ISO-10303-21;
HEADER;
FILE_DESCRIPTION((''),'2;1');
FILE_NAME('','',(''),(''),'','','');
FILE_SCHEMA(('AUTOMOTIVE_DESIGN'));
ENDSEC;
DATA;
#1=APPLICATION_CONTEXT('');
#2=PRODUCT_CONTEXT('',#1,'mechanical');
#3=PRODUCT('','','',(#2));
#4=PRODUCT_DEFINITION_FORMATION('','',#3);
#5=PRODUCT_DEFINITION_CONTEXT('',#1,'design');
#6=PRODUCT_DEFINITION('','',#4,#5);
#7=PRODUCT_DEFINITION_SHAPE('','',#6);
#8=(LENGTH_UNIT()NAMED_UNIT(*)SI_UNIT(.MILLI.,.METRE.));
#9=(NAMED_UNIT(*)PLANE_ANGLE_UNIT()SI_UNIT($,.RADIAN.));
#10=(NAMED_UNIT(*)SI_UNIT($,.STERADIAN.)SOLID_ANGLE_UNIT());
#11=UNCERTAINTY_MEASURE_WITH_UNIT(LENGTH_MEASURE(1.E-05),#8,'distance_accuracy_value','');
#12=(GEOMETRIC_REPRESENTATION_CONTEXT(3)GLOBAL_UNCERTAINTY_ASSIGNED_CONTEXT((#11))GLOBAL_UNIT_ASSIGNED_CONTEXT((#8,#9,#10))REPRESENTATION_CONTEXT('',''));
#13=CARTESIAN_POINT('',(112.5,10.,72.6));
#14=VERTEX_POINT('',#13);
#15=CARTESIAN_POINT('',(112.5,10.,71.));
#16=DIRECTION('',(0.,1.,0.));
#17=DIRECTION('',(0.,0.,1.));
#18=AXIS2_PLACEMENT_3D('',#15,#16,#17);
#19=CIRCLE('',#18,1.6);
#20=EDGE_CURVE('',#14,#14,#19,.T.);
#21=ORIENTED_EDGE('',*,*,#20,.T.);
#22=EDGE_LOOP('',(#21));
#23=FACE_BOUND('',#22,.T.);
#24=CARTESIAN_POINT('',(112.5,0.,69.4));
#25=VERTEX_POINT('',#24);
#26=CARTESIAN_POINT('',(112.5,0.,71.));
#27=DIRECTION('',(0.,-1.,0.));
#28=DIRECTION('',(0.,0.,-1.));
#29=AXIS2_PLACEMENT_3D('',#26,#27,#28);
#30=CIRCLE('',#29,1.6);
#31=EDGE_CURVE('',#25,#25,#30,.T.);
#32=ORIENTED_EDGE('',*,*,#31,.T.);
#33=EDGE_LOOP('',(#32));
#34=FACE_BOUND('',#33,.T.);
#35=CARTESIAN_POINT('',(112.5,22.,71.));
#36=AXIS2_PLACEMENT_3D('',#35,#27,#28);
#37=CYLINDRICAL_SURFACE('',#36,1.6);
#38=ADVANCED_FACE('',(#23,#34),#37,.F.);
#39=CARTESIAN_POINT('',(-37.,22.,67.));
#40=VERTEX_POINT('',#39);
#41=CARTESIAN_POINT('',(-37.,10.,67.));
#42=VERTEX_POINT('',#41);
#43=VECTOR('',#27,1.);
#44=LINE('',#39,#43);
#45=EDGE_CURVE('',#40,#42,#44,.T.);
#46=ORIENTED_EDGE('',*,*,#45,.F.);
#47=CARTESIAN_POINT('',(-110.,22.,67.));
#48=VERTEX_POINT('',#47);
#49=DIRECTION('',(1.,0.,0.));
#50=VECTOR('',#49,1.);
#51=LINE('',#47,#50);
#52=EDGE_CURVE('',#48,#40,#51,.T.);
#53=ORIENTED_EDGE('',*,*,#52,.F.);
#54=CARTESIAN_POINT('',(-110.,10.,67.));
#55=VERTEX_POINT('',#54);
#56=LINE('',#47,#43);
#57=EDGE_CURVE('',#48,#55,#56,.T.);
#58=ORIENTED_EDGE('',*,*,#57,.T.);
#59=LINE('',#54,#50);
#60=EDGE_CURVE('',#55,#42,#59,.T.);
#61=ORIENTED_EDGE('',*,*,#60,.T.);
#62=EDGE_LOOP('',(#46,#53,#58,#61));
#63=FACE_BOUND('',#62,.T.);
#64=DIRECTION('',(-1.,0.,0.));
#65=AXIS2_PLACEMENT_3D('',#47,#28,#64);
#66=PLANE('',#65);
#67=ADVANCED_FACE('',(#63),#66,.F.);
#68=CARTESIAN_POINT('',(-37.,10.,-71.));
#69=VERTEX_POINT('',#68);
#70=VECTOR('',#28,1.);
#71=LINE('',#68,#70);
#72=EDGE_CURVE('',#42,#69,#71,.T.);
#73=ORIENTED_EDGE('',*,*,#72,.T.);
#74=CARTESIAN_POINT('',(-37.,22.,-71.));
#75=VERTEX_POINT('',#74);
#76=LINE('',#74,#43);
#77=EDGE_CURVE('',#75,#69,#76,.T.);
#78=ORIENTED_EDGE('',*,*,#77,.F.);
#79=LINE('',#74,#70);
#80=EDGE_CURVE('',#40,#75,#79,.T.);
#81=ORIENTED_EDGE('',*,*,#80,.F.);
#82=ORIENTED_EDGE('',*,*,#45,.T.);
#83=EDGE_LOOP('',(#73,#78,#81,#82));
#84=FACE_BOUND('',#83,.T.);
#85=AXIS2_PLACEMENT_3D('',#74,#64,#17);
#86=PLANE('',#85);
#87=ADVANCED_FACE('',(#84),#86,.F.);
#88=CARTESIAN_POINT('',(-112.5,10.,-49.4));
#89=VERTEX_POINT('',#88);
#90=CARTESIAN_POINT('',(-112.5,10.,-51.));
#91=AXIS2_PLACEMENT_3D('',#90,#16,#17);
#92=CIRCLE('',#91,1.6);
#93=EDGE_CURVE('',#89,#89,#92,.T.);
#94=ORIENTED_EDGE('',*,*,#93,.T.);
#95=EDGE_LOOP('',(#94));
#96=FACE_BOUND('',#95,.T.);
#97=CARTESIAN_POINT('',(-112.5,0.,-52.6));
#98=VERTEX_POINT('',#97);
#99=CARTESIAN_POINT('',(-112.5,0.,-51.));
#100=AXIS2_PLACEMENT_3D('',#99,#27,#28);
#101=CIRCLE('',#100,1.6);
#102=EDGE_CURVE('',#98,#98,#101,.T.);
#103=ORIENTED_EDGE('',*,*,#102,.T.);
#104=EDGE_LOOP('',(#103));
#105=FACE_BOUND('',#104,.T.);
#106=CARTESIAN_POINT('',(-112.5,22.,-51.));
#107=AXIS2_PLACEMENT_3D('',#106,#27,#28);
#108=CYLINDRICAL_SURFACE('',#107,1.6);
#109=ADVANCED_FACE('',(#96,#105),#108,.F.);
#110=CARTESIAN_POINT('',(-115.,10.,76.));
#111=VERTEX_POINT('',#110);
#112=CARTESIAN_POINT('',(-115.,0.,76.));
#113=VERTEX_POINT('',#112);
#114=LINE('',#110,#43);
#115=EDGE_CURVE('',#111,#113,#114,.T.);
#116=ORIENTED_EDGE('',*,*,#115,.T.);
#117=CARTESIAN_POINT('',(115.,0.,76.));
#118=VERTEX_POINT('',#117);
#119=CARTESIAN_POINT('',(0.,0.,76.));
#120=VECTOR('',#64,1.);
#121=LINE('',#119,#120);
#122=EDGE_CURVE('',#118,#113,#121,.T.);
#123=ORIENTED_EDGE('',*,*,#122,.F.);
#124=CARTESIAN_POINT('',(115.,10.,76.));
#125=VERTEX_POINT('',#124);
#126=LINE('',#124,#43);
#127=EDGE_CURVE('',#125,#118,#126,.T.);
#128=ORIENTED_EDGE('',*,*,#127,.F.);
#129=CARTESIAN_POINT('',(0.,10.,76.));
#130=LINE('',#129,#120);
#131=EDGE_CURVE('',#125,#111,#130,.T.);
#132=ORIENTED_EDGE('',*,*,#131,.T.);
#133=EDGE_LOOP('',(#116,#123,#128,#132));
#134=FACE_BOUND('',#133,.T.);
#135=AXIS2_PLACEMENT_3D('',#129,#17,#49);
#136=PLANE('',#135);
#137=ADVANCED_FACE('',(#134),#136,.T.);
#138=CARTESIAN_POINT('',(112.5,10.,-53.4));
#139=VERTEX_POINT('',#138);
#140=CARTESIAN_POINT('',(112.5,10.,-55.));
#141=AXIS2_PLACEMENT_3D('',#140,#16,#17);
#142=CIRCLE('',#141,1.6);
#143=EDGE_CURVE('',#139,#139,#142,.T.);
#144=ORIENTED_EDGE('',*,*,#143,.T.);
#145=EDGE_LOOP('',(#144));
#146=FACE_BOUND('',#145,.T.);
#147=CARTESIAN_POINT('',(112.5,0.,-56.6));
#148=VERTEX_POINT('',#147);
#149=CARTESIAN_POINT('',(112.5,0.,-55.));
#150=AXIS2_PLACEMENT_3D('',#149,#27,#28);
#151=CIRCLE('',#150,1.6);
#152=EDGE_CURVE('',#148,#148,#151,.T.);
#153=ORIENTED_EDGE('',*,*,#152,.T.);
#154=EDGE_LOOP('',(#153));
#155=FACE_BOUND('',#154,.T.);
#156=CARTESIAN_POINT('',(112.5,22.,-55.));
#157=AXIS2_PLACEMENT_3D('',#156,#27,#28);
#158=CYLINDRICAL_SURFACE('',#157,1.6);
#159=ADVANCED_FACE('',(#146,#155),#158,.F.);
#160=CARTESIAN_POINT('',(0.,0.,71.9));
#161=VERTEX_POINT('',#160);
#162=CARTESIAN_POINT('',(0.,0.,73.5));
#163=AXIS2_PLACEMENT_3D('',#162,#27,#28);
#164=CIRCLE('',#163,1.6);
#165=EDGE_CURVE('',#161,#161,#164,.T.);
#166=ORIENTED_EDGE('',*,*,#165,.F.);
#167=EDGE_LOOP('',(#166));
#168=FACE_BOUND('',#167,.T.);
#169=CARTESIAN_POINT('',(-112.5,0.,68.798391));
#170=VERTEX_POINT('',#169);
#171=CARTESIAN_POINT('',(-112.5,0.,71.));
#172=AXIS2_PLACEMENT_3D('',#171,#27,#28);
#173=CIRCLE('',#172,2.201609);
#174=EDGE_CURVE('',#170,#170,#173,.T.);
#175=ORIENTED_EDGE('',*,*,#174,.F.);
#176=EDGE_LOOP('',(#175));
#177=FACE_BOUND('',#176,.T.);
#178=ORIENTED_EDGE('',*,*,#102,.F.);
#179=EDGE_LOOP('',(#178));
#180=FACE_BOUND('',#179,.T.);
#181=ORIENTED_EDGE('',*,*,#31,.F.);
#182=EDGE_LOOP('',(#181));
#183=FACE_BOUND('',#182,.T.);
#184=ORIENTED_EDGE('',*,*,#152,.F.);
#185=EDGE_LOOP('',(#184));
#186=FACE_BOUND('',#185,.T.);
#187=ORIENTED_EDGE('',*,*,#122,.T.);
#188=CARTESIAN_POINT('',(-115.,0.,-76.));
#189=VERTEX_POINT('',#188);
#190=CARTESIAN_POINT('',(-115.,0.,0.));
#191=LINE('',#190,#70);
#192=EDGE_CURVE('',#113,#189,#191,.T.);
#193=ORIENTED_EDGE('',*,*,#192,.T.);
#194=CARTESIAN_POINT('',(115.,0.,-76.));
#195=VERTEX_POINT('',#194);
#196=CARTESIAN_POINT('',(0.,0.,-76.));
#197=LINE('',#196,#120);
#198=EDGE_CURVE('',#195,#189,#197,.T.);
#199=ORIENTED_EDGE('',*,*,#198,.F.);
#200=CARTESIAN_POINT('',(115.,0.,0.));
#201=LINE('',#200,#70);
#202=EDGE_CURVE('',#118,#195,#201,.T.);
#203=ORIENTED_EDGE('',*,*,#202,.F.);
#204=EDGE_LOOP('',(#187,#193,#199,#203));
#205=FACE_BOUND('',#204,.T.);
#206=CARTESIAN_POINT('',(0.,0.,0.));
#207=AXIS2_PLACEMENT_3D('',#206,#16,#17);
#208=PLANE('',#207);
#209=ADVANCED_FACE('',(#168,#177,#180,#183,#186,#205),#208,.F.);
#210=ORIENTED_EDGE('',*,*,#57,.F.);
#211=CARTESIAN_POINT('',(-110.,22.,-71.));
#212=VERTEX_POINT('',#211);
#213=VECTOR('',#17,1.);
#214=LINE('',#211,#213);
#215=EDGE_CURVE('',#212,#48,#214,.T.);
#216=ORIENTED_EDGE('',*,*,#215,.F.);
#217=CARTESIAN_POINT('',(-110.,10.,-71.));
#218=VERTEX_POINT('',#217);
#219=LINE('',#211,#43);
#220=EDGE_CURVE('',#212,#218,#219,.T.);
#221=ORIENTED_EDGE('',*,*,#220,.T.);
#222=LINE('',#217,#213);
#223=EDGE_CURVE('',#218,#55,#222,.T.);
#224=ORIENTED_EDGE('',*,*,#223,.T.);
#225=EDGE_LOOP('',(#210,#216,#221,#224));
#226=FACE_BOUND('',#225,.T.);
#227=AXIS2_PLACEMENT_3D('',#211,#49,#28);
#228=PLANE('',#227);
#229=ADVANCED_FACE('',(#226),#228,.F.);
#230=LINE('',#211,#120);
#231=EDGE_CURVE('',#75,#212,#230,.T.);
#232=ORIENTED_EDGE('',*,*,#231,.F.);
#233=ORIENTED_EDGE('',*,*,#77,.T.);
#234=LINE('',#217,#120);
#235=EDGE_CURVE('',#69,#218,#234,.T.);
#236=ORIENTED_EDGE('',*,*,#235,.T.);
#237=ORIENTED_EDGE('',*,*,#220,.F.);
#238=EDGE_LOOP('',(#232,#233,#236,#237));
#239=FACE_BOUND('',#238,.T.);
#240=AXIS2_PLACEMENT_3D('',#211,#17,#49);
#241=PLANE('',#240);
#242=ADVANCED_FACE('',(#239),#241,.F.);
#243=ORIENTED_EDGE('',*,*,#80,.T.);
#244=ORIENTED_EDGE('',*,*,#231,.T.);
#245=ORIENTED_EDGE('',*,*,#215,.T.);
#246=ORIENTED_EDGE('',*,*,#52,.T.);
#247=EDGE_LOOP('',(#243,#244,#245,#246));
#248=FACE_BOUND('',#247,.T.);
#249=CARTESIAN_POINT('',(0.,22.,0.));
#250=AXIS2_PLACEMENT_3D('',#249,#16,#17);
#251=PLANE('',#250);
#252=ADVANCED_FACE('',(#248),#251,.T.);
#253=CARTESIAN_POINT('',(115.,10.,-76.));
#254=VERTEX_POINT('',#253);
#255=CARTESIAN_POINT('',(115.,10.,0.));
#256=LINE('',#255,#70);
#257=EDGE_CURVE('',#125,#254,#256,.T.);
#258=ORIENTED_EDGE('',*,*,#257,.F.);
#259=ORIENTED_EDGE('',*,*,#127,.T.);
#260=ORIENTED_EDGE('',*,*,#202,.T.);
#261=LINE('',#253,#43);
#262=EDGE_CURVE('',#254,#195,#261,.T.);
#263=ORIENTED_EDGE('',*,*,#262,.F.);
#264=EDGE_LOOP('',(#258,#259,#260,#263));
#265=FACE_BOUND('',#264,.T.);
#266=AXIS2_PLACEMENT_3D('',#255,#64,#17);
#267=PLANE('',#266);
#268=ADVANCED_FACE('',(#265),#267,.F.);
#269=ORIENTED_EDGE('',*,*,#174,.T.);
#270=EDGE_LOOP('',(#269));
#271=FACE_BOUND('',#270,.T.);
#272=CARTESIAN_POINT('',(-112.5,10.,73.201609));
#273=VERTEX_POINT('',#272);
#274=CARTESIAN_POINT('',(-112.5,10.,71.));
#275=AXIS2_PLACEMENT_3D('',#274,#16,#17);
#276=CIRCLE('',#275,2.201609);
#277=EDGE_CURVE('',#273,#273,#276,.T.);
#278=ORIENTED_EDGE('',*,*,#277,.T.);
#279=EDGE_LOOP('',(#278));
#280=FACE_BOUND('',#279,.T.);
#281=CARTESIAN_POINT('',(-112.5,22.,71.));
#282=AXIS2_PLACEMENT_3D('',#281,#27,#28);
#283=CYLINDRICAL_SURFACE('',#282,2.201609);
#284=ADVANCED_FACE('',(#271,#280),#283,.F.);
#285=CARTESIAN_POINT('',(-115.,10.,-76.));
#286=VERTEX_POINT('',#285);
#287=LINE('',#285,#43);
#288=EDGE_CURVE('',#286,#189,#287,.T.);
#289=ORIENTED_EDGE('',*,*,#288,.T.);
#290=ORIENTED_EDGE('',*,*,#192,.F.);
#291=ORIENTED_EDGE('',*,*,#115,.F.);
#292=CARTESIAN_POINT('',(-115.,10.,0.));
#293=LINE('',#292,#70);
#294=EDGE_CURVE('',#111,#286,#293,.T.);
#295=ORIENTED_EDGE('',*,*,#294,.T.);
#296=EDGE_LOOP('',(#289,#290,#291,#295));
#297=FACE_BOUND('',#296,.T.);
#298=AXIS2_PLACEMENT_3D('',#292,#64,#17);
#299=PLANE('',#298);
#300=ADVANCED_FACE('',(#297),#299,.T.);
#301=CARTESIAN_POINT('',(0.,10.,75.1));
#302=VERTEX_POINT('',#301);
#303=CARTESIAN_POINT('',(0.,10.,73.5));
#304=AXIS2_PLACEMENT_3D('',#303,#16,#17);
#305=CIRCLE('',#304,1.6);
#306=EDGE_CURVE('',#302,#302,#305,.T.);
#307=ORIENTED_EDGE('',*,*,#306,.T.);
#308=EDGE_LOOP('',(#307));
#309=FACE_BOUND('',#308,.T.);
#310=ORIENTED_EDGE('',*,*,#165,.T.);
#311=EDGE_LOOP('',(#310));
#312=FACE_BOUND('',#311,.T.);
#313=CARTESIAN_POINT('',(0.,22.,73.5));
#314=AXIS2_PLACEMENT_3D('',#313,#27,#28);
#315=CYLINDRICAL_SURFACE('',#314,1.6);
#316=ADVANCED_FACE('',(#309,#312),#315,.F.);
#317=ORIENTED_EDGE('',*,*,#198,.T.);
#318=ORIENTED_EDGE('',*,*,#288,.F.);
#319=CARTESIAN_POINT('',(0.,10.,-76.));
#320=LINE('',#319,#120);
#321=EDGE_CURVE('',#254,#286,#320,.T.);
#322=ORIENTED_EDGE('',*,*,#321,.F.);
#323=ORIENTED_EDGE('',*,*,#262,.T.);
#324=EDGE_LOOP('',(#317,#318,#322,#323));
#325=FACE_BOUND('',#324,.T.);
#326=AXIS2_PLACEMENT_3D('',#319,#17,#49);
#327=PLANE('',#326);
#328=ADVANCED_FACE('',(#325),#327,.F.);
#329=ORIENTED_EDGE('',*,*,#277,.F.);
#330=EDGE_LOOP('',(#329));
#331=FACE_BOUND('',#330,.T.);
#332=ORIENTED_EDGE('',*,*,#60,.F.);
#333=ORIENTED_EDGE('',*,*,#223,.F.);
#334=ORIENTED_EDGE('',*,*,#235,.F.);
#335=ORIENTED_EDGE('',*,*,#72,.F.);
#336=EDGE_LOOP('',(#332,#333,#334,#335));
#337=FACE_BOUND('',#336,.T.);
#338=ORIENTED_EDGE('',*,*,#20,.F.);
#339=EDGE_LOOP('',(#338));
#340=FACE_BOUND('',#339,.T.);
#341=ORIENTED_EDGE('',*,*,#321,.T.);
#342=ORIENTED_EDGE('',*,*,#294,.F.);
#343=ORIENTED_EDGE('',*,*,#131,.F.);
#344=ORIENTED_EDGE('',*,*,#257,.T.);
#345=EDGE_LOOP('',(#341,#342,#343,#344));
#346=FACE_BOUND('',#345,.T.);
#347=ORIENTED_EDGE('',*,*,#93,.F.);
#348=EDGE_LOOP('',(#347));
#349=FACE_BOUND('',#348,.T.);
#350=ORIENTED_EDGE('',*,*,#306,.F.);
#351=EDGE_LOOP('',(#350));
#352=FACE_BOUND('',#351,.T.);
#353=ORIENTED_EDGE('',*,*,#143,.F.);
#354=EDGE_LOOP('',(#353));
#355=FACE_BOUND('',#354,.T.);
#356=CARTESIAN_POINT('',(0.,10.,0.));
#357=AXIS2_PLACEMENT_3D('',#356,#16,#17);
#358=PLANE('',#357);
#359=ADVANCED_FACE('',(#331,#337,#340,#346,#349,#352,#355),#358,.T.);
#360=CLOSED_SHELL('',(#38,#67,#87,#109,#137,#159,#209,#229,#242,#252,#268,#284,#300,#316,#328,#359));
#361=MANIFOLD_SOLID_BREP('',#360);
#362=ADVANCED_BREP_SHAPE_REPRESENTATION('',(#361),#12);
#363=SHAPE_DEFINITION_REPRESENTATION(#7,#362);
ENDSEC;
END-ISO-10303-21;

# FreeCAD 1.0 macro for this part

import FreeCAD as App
import Part
import Sketcher
from FreeCAD import Vector


def add_polygon(sketch, points):
    """Adds a closed chain of lines whose ends are joined by coincident constraints."""
    first, n = sketch.GeometryCount, len(points)
    for a, b in zip(points, points[1:] + points[:1]):
        sketch.addGeometry(Part.LineSegment(App.Vector(*a, 0), App.Vector(*b, 0)), False)
    for i in range(n):
        sketch.addConstraint(Sketcher.Constraint("Coincident", first + i, 2, first + (i + 1) % n, 1))

doc = App.newDocument("Part")
body = doc.addObject("PartDesign::Body", "Body")

# Sketch on XZ plane
sketch1 = doc.addObject("Sketcher::SketchObject", "Sketch")
body.addObject(sketch1)
sketch1.AttachmentSupport = (doc.XZ_Plane, [""])
sketch1.MapMode = "FlatFace"
add_polygon(sketch1, [(-115, -76), (-115, 76), (115, 76), (115, -76)])  # lines 0-3
sketch1.addConstraint([
    Sketcher.Constraint("Vertical", 0),
    Sketcher.Constraint("Horizontal", 1),
    Sketcher.Constraint("Vertical", 2),
    Sketcher.Constraint("Horizontal", 3),
    Sketcher.Constraint("Symmetric", 0, 2, 2, 2, -1, 1),
    Sketcher.Constraint("DistanceX", 1, 1, 1, 2, 230.0),
    Sketcher.Constraint("DistanceY", 0, 1, 0, 2, 152.0),
])
pad1 = doc.addObject("PartDesign::Pad", "Pad")
body.addObject(pad1)
pad1.Profile = sketch1
pad1.Length = 10
pad1.Reversed = True

# Sketch on XZ plane
sketch2 = doc.addObject("Sketcher::SketchObject", "Sketch001")
body.addObject(sketch2)
sketch2.AttachmentSupport = (doc.XZ_Plane, [""])
sketch2.MapMode = "FlatFace"
sketch2.AttachmentOffset = App.Placement(Vector(0, 0, -10), App.Rotation())
add_polygon(sketch2, [(-110, -71), (-110, 67), (-37, 67), (-37, -71)])  # lines 0-3
sketch2.addConstraint([
    Sketcher.Constraint("Vertical", 0),
    Sketcher.Constraint("Horizontal", 1),
    Sketcher.Constraint("Vertical", 2),
    Sketcher.Constraint("Horizontal", 3),
    Sketcher.Constraint("DistanceX", 1, 1, 1, 2, 73.0),
    Sketcher.Constraint("DistanceY", 0, 1, 0, 2, 138.0),
    Sketcher.Constraint("DistanceX", 0, 2, -1, 1, 110.0),
    Sketcher.Constraint("DistanceY", -1, 1, 0, 2, 67.0),
])
pad2 = doc.addObject("PartDesign::Pad", "Pad001")
body.addObject(pad2)
pad2.Profile = sketch2
pad2.Length = 12
pad2.Reversed = True

# Sketch on XZ plane
sketch3 = doc.addObject("Sketcher::SketchObject", "Sketch002")
body.addObject(sketch3)
sketch3.AttachmentSupport = (doc.XZ_Plane, [""])
sketch3.MapMode = "FlatFace"
sketch3.addGeometry([
    Part.Circle(Vector(0, 73.5, 0), Vector(0, 0, 1), 1.6),  # 0
    Part.Circle(Vector(112.5, -55, 0), Vector(0, 0, 1), 1.6),  # 1
    Part.Circle(Vector(112.5, 71, 0), Vector(0, 0, 1), 1.6),  # 2
    Part.Circle(Vector(-112.5, -51, 0), Vector(0, 0, 1), 1.6),  # 3
    Part.Circle(Vector(-112.5, 71, 0), Vector(0, 0, 1), 2.201609),  # 4
], False)
sketch3.addConstraint([
    Sketcher.Constraint("Equal", 0, 1),
    Sketcher.Constraint("Equal", 1, 2),
    Sketcher.Constraint("Equal", 2, 3),
    Sketcher.Constraint("Symmetric", 2, 3, 4, 3, -2),
    Sketcher.Constraint("PointOnObject", 0, 3, -2),
    Sketcher.Constraint("Vertical", 1, 3, 2, 3),
    Sketcher.Constraint("Vertical", 3, 3, 4, 3),
    Sketcher.Constraint("Diameter", 0, 3.2),
    Sketcher.Constraint("DistanceY", 1, 3, -1, 1, 55.0),
    Sketcher.Constraint("DistanceY", -1, 1, 2, 3, 71.0),
    Sketcher.Constraint("DistanceY", 3, 3, -1, 1, 51.0),
    Sketcher.Constraint("DistanceX", 3, 3, 1, 3, 225.0),
    Sketcher.Constraint("DistanceY", -1, 1, 0, 3, 73.5),
    Sketcher.Constraint("Diameter", 4, 4.403218),
])
pocket1 = doc.addObject("PartDesign::Pocket", "Pocket")
body.addObject(pocket1)
pocket1.Profile = sketch3
pocket1.Type = "ThroughAll"

doc.recompute()
